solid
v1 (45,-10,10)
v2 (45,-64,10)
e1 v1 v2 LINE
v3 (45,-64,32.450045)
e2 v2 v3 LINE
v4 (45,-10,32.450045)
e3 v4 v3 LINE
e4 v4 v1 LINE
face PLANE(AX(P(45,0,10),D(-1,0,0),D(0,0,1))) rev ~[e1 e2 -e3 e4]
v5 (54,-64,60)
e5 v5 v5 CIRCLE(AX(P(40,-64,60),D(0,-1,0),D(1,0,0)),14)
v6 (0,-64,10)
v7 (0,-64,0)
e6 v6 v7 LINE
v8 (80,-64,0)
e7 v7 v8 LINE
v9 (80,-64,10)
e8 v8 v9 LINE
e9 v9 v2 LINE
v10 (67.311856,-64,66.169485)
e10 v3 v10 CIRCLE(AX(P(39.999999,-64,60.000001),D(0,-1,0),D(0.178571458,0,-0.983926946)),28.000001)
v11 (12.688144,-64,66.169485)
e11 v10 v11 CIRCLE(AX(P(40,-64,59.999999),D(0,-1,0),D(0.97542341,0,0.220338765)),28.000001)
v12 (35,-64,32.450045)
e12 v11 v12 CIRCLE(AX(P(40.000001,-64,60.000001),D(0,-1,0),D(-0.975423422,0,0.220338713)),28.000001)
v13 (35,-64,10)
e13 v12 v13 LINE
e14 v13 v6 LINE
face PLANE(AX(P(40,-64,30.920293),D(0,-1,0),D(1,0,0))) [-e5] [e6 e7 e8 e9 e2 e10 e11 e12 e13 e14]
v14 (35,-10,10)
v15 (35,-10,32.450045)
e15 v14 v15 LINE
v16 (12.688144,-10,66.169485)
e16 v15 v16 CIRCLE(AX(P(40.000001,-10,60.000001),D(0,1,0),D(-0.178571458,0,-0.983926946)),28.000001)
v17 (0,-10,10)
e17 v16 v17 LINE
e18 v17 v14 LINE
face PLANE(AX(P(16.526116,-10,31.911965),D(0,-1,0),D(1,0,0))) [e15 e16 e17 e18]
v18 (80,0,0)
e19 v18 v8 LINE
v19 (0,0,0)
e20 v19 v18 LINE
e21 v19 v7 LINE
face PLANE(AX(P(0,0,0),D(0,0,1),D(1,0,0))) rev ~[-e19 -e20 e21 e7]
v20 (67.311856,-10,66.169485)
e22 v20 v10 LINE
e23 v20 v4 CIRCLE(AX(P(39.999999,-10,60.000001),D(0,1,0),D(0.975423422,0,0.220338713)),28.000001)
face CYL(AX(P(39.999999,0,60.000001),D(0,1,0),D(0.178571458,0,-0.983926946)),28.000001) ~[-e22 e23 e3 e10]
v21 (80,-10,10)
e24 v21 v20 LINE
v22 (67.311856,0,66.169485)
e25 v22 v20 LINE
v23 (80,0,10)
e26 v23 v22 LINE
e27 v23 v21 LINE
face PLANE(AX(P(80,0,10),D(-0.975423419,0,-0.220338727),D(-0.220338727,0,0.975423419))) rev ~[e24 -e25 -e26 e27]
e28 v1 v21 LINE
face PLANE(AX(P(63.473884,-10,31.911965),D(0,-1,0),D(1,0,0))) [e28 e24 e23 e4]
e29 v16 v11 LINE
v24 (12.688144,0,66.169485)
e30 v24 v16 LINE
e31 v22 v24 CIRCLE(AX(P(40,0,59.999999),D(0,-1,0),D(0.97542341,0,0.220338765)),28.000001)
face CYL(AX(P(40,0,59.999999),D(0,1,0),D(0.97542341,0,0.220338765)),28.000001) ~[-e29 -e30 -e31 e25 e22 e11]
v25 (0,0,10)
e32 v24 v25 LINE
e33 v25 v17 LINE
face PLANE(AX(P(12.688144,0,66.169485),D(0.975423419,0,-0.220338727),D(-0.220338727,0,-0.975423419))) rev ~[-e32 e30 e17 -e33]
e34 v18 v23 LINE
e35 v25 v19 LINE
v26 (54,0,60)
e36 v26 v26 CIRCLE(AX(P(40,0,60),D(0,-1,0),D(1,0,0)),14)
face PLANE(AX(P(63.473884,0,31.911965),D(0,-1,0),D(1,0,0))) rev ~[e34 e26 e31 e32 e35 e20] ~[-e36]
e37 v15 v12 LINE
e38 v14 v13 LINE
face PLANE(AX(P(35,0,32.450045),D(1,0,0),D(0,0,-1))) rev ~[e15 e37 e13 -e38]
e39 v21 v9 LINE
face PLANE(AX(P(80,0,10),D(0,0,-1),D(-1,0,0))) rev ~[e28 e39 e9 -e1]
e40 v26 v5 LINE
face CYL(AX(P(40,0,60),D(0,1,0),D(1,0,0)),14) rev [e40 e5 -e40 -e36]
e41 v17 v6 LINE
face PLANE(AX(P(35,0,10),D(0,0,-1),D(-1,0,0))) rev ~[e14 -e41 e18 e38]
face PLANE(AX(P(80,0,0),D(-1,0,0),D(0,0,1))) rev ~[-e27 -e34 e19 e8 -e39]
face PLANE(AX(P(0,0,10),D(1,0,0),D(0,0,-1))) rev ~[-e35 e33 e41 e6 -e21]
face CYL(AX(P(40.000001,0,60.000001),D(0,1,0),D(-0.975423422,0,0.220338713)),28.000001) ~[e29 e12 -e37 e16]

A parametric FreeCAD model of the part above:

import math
import FreeCAD as App
import Part
import Sketcher

V = App.Vector

doc = App.newDocument("Part")
body = doc.addObject("PartDesign::Body", "Body")

# Sketch on XZ plane
sketch1 = doc.addObject("Sketcher::SketchObject", "Sketch")
body.addObject(sketch1)
sketch1.AttachmentSupport = (doc.XZ_Plane, [""])
sketch1.MapMode = "FlatFace"
sketch1.addGeometry([
    Part.LineSegment(V(0, 10, 0), V(0, 0, 0)),  # 0
    Part.LineSegment(V(0, 0, 0), V(80, 0, 0)),  # 1
    Part.LineSegment(V(80, 0, 0), V(80, 10, 0)),  # 2
    Part.LineSegment(V(80, 10, 0), V(45, 10, 0)),  # 3
    Part.LineSegment(V(45, 10, 0), V(45, 32, 0)),  # 4
    Part.ArcOfCircle(Part.Circle(V(40, 60, 0), V(0, 0, 1), 28), math.radians(-80), math.radians(13)),  # 5
    Part.ArcOfCircle(Part.Circle(V(40, 60, 0), V(0, 0, 1), 28), math.radians(13), math.radians(167)),  # 6
    Part.ArcOfCircle(Part.Circle(V(40, 60, 0), V(0, 0, 1), 28), math.radians(167), math.radians(260)),  # 7
    Part.LineSegment(V(35, 32, 0), V(35, 10, 0)),  # 8
    Part.LineSegment(V(35, 10, 0), V(0, 10, 0)),  # 9
    Part.Circle(V(40, 60, 0), V(0, 0, 1), 14),  # 10
], False)
sketch1.addConstraint([
    Sketcher.Constraint("Coincident", 0, 2, 1, 1),
    Sketcher.Constraint("Coincident", 1, 2, 2, 1),
    Sketcher.Constraint("Coincident", 2, 2, 3, 1),
    Sketcher.Constraint("Coincident", 3, 2, 4, 1),
    Sketcher.Constraint("Coincident", 4, 2, 5, 1),
    Sketcher.Constraint("Tangent", 5, 2, 6, 1),
    Sketcher.Constraint("Tangent", 6, 2, 7, 1),
    Sketcher.Constraint("Coincident", 7, 2, 8, 1),
    Sketcher.Constraint("Coincident", 8, 2, 9, 1),
    Sketcher.Constraint("Coincident", 9, 2, 0, 1),
    Sketcher.Constraint("Vertical", 0),
    Sketcher.Constraint("Horizontal", 1),
    Sketcher.Constraint("Vertical", 2),
    Sketcher.Constraint("Horizontal", 3),
    Sketcher.Constraint("Vertical", 4),
    Sketcher.Constraint("Vertical", 8),
    Sketcher.Constraint("Horizontal", 9),
    Sketcher.Constraint("Coincident", 0, 2, -1, 1),
    Sketcher.Constraint("Coincident", 7, 3, 5, 3),
    Sketcher.Constraint("Coincident", 10, 3, 5, 3),
    Sketcher.Constraint("Horizontal", 5, 2, 6, 2),
    Sketcher.Constraint("Horizontal", 4, 2, 7, 2),
    Sketcher.Constraint("Horizontal", 3, 2, 8, 2),
    Sketcher.Constraint("Equal", 3, 9),
    Sketcher.Constraint("Diameter", 10, 28.0),
    Sketcher.Constraint("Radius", 5, 28.000001),
    Sketcher.Constraint("DistanceX", 1, 1, 1, 2, 80.0),
    Sketcher.Constraint("DistanceX", 3, 2, 3, 1, 35.0),
    Sketcher.Constraint("DistanceY", 0, 2, 0, 1, 10.0),
    Sketcher.Constraint("DistanceY", -1, 1, 5, 3, 60.000001),
    Sketcher.Constraint("DistanceY", 4, 2, 5, 2, 33.71944),
])
pad1 = doc.addObject("PartDesign::Pad", "Pad")
body.addObject(pad1)
pad1.Profile = sketch1
pad1.Length = 64

# Sketch on XZ plane
sketch2 = doc.addObject("Sketcher::SketchObject", "Sketch001")
body.addObject(sketch2)
sketch2.AttachmentSupport = (doc.XZ_Plane, [""])
sketch2.MapMode = "FlatFace"
sketch2.addGeometry([
    Part.LineSegment(V(45, 10, 0), V(80, 10, 0)),  # 0
    Part.LineSegment(V(80, 10, 0), V(67, 66, 0)),  # 1
    Part.ArcOfCircle(Part.Circle(V(40, 60, 0), V(0, 0, 1), 28), math.radians(-80), math.radians(13)),  # 2
    Part.LineSegment(V(45, 32, 0), V(45, 10, 0)),  # 3
    Part.LineSegment(V(13, 66, 0), V(0, 10, 0)),  # 4
    Part.LineSegment(V(0, 10, 0), V(35, 10, 0)),  # 5
    Part.LineSegment(V(35, 10, 0), V(35, 32, 0)),  # 6
    Part.ArcOfCircle(Part.Circle(V(40, 60, 0), V(0, 0, 1), 28), math.radians(167), math.radians(260)),  # 7
], False)
sketch2.addConstraint([
    Sketcher.Constraint("Coincident", 0, 2, 1, 1),
    Sketcher.Constraint("Tangent", 1, 2, 2, 2),
    Sketcher.Constraint("Coincident", 2, 1, 3, 1),
    Sketcher.Constraint("Coincident", 3, 2, 0, 1),
    Sketcher.Constraint("Coincident", 4, 2, 5, 1),
    Sketcher.Constraint("Coincident", 5, 2, 6, 1),
    Sketcher.Constraint("Coincident", 6, 2, 7, 2),
    Sketcher.Constraint("Tangent", 7, 1, 4, 1),
    Sketcher.Constraint("Horizontal", 0),
    Sketcher.Constraint("Vertical", 3),
    Sketcher.Constraint("Horizontal", 5),
    Sketcher.Constraint("Vertical", 6),
    Sketcher.Constraint("Coincident", 7, 3, 2, 3),
    Sketcher.Constraint("Equal", 2, 7),
    Sketcher.Constraint("PointOnObject", 4, 2, -2),
    Sketcher.Constraint("Horizontal", 3, 2, 4, 2),
    Sketcher.Constraint("Horizontal", 2, 1, 6, 2),
    Sketcher.Constraint("Horizontal", 1, 2, 7, 1),
    Sketcher.Constraint("Radius", 2, 28.000001),
    Sketcher.Constraint("DistanceX", 0, 1, 0, 2, 35.0),
    Sketcher.Constraint("DistanceX", -1, 1, 2, 3, 39.999999),
    Sketcher.Constraint("DistanceY", -1, 1, 2, 3, 60.000001),
    Sketcher.Constraint("DistanceY", -1, 1, 0, 2, 10.0),
])
pad2 = doc.addObject("PartDesign::Pad", "Pad001")
body.addObject(pad2)
pad2.Profile = sketch2
pad2.Length = 10

doc.recompute()
